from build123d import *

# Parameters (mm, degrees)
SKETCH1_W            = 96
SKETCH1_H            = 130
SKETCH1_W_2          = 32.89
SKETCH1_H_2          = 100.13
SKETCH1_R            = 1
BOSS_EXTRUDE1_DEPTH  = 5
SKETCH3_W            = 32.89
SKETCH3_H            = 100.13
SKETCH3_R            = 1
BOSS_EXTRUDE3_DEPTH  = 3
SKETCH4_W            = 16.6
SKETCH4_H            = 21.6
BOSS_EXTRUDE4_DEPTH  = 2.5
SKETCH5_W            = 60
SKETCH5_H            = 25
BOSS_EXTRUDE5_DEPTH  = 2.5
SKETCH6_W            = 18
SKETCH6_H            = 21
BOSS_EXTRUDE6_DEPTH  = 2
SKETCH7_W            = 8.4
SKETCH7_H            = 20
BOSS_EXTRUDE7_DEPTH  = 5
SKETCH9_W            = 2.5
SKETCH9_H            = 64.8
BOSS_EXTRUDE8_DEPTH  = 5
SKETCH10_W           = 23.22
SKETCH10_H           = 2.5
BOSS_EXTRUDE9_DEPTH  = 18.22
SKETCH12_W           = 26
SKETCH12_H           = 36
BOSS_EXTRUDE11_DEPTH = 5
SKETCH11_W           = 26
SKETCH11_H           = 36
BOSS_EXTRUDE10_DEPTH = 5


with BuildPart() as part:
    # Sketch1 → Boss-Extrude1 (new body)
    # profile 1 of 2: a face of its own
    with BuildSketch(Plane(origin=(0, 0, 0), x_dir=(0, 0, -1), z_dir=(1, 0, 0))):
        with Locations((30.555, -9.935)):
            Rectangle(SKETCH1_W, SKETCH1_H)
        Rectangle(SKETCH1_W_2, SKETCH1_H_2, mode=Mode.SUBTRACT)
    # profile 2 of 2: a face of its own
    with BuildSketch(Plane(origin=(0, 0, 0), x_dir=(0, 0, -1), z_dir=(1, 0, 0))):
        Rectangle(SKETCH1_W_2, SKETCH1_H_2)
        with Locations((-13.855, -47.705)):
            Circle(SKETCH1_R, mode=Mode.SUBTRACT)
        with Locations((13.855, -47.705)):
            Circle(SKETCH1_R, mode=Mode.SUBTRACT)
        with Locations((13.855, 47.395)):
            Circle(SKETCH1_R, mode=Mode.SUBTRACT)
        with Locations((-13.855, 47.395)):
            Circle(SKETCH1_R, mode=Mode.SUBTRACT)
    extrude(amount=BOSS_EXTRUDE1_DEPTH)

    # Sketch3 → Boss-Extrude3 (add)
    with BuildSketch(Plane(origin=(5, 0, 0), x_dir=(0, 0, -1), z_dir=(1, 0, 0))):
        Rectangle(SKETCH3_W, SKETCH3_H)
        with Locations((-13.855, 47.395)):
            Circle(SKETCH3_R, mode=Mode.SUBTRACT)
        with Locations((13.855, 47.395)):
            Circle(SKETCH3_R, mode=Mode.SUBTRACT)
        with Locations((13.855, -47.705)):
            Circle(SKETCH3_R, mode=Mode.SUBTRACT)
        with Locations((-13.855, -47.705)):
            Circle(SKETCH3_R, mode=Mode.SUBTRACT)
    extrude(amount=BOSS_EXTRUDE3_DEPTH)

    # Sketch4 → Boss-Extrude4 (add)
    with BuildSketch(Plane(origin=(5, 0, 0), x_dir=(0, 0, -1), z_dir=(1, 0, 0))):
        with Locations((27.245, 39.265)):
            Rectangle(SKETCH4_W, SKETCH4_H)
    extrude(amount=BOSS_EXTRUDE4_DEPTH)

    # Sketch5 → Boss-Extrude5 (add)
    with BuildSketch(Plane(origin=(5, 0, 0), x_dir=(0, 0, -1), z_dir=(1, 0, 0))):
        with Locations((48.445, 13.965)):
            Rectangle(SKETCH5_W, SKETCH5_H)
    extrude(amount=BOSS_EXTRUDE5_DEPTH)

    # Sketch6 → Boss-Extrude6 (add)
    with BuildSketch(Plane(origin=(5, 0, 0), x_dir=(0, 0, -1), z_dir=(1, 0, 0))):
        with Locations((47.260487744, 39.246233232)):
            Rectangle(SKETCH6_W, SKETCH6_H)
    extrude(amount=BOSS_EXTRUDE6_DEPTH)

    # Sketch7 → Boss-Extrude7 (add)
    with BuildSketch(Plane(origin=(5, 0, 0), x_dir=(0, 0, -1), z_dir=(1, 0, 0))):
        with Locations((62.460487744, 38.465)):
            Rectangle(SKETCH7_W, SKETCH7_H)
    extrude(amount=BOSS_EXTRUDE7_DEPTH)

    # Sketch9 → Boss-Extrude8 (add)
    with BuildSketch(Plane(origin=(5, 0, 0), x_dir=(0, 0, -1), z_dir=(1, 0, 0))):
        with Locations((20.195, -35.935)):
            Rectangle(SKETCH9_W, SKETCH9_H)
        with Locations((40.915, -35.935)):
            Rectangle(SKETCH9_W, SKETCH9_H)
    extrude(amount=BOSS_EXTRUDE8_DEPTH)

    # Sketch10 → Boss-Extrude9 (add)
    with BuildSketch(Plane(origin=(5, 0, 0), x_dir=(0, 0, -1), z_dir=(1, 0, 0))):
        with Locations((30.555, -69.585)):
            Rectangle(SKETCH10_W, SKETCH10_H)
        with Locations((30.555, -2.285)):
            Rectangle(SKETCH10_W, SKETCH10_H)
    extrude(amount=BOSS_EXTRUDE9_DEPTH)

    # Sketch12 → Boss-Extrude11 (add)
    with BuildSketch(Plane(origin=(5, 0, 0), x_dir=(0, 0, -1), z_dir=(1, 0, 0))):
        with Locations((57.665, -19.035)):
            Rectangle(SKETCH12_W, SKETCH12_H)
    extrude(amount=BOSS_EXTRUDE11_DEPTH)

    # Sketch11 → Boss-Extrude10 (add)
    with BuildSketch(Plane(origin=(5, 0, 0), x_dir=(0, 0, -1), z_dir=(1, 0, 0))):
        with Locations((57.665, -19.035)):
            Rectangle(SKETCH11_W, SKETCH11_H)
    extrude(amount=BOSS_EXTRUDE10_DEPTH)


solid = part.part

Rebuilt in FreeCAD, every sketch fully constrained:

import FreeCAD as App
import Part
import Sketcher

doc = App.newDocument("Part")
body = doc.addObject("PartDesign::Body", "Body")

# Sketch on YZ plane
sketch1 = doc.addObject("Sketcher::SketchObject", "Sketch")
body.addObject(sketch1)
sketch1.AttachmentSupport = (doc.YZ_Plane, [""])
sketch1.MapMode = "FlatFace"
sketch1.addGeometry(Part.LineSegment(App.Vector(55.1, 17.4, 0), App.Vector(-74.9, 17.4, 0)), False)
sketch1.addGeometry(Part.LineSegment(App.Vector(-74.9, 17.4, 0), App.Vector(-74.9, -78.6, 0)), False)
sketch1.addGeometry(Part.LineSegment(App.Vector(-74.9, -78.6, 0), App.Vector(55.1, -78.6, 0)), False)
sketch1.addGeometry(Part.LineSegment(App.Vector(55.1, -78.6, 0), App.Vector(55.1, 17.4, 0)), False)
sketch1.addGeometry(Part.Circle(App.Vector(-47.7, 13.9, 0), App.Vector(0, 0, 1), 1), False)
sketch1.addGeometry(Part.Circle(App.Vector(47.4, -13.9, 0), App.Vector(0, 0, 1), 1), False)
sketch1.addGeometry(Part.Circle(App.Vector(-47.7, -13.9, 0), App.Vector(0, 0, 1), 1), False)
sketch1.addGeometry(Part.Circle(App.Vector(47.4, 13.9, 0), App.Vector(0, 0, 1), 1), False)
sketch1.addConstraint(Sketcher.Constraint("Coincident", 0, 2, 1, 1))
sketch1.addConstraint(Sketcher.Constraint("Coincident", 1, 2, 2, 1))
sketch1.addConstraint(Sketcher.Constraint("Coincident", 2, 2, 3, 1))
sketch1.addConstraint(Sketcher.Constraint("Coincident", 3, 2, 0, 1))
sketch1.addConstraint(Sketcher.Constraint("Horizontal", 0))
sketch1.addConstraint(Sketcher.Constraint("Vertical", 1))
sketch1.addConstraint(Sketcher.Constraint("Horizontal", 2))
sketch1.addConstraint(Sketcher.Constraint("Vertical", 3))
sketch1.addConstraint(Sketcher.Constraint("Equal", 4, 5))
sketch1.addConstraint(Sketcher.Constraint("Equal", 5, 6))
sketch1.addConstraint(Sketcher.Constraint("Equal", 6, 7))
sketch1.addConstraint(Sketcher.Constraint("Symmetric", 4, 3, 6, 3, -1))
sketch1.addConstraint(Sketcher.Constraint("Symmetric", 5, 3, 7, 3, -1))
sketch1.addConstraint(Sketcher.Constraint("Horizontal", 5, 3, 6, 3))
sketch1.addConstraint(Sketcher.Constraint("Diameter", 4, 2.0))
sketch1.addConstraint(Sketcher.Constraint("DistanceX", 0, 2, 0, 1, 130.0))
sketch1.addConstraint(Sketcher.Constraint("DistanceY", 1, 2, 1, 1, 96.0))
sketch1.addConstraint(Sketcher.Constraint("DistanceX", 4, 3, 5, 3, 95.1))
sketch1.addConstraint(Sketcher.Constraint("DistanceY", 6, 3, 0, 2, 31.3))
sketch1.addConstraint(Sketcher.Constraint("DistanceY", 5, 3, 4, 3, 27.71))
sketch1.addConstraint(Sketcher.Constraint("DistanceX", 0, 2, 4, 3, 27.23))
sketch1.addConstraint(Sketcher.Constraint("DistanceX", 4, 3, -1, 1, 47.705))
pad1 = doc.addObject("PartDesign::Pad", "Pad")
body.addObject(pad1)
pad1.Profile = sketch1
pad1.Length = 5

# Sketch on YZ plane
sketch2 = doc.addObject("Sketcher::SketchObject", "Sketch001")
body.addObject(sketch2)
sketch2.AttachmentSupport = (doc.YZ_Plane, [""])
sketch2.MapMode = "FlatFace"
sketch2.AttachmentOffset = App.Placement(App.Vector(0, 0, 5), App.Rotation())
sketch2.addGeometry(Part.LineSegment(App.Vector(50.1, 16.4, 0), App.Vector(-50.1, 16.4, 0)), False)
sketch2.addGeometry(Part.LineSegment(App.Vector(-50.1, 16.4, 0), App.Vector(-50.1, -16.4, 0)), False)
sketch2.addGeometry(Part.LineSegment(App.Vector(-50.1, -16.4, 0), App.Vector(50.1, -16.4, 0)), False)
sketch2.addGeometry(Part.LineSegment(App.Vector(50.1, -16.4, 0), App.Vector(50.1, 16.4, 0)), False)
sketch2.addGeometry(Part.Circle(App.Vector(-47.7, 13.9, 0), App.Vector(0, 0, 1), 1), False)
sketch2.addGeometry(Part.Circle(App.Vector(-47.7, -13.9, 0), App.Vector(0, 0, 1), 1), False)
sketch2.addGeometry(Part.Circle(App.Vector(47.4, 13.9, 0), App.Vector(0, 0, 1), 1), False)
sketch2.addGeometry(Part.Circle(App.Vector(47.4, -13.9, 0), App.Vector(0, 0, 1), 1), False)
sketch2.addConstraint(Sketcher.Constraint("Coincident", 0, 2, 1, 1))
sketch2.addConstraint(Sketcher.Constraint("Coincident", 1, 2, 2, 1))
sketch2.addConstraint(Sketcher.Constraint("Coincident", 2, 2, 3, 1))
sketch2.addConstraint(Sketcher.Constraint("Coincident", 3, 2, 0, 1))
sketch2.addConstraint(Sketcher.Constraint("Horizontal", 0))
sketch2.addConstraint(Sketcher.Constraint("Vertical", 1))
sketch2.addConstraint(Sketcher.Constraint("Horizontal", 2))
sketch2.addConstraint(Sketcher.Constraint("Vertical", 3))
sketch2.addConstraint(Sketcher.Constraint("Equal", 4, 5))
sketch2.addConstraint(Sketcher.Constraint("Equal", 5, 6))
sketch2.addConstraint(Sketcher.Constraint("Equal", 6, 7))
sketch2.addConstraint(Sketcher.Constraint("Symmetric", 0, 2, 2, 2, -1, 1))
sketch2.addConstraint(Sketcher.Constraint("Symmetric", 4, 3, 5, 3, -1))
sketch2.addConstraint(Sketcher.Constraint("Symmetric", 6, 3, 7, 3, -1))
sketch2.addConstraint(Sketcher.Constraint("Horizontal", 4, 3, 6, 3))
sketch2.addConstraint(Sketcher.Constraint("Diameter", 4, 2.0))
sketch2.addConstraint(Sketcher.Constraint("DistanceX", 0, 2, 0, 1, 100.13))
sketch2.addConstraint(Sketcher.Constraint("DistanceY", 1, 2, 1, 1, 32.89))
sketch2.addConstraint(Sketcher.Constraint("DistanceX", 4, 3, 6, 3, 95.1))
sketch2.addConstraint(Sketcher.Constraint("DistanceY", 5, 3, 0, 2, 30.3))
sketch2.addConstraint(Sketcher.Constraint("DistanceX", 0, 2, 4, 3, 2.36))
pad2 = doc.addObject("PartDesign::Pad", "Pad001")
body.addObject(pad2)
pad2.Profile = sketch2
pad2.Length = 3

# Sketch on YZ plane
sketch3 = doc.addObject("Sketcher::SketchObject", "Sketch002")
body.addObject(sketch3)
sketch3.AttachmentSupport = (doc.YZ_Plane, [""])
sketch3.MapMode = "FlatFace"
sketch3.AttachmentOffset = App.Placement(App.Vector(0, 0, 5), App.Rotation())
sketch3.addGeometry(Part.LineSegment(App.Vector(50, -19, 0), App.Vector(28, -19, 0)), False)
sketch3.addGeometry(Part.LineSegment(App.Vector(28, -19, 0), App.Vector(28, -36, 0)), False)
sketch3.addGeometry(Part.LineSegment(App.Vector(28, -36, 0), App.Vector(50, -36, 0)), False)
sketch3.addGeometry(Part.LineSegment(App.Vector(50, -36, 0), App.Vector(50, -19, 0)), False)
sketch3.addConstraint(Sketcher.Constraint("Coincident", 0, 2, 1, 1))
sketch3.addConstraint(Sketcher.Constraint("Coincident", 1, 2, 2, 1))
sketch3.addConstraint(Sketcher.Constraint("Coincident", 2, 2, 3, 1))
sketch3.addConstraint(Sketcher.Constraint("Coincident", 3, 2, 0, 1))
sketch3.addConstraint(Sketcher.Constraint("Horizontal", 0))
sketch3.addConstraint(Sketcher.Constraint("Vertical", 1))
sketch3.addConstraint(Sketcher.Constraint("Horizontal", 2))
sketch3.addConstraint(Sketcher.Constraint("Vertical", 3))
sketch3.addConstraint(Sketcher.Constraint("DistanceX", 0, 2, 0, 1, 21.6))
sketch3.addConstraint(Sketcher.Constraint("DistanceY", 1, 2, 1, 1, 16.6))
sketch3.addConstraint(Sketcher.Constraint("DistanceX", -1, 1, 0, 2, 28.465))
sketch3.addConstraint(Sketcher.Constraint("DistanceY", 0, 2, -1, 1, 18.945))
pad3 = doc.addObject("PartDesign::Pad", "Pad002")
body.addObject(pad3)
pad3.Profile = sketch3
pad3.Length = 2.5

# Sketch on YZ plane
sketch4 = doc.addObject("Sketcher::SketchObject", "Sketch003")
body.addObject(sketch4)
sketch4.AttachmentSupport = (doc.YZ_Plane, [""])
sketch4.MapMode = "FlatFace"
sketch4.AttachmentOffset = App.Placement(App.Vector(0, 0, 5), App.Rotation())
sketch4.addGeometry(Part.LineSegment(App.Vector(26, -18, 0), App.Vector(1, -18, 0)), False)
sketch4.addGeometry(Part.LineSegment(App.Vector(1, -18, 0), App.Vector(1, -78, 0)), False)
sketch4.addGeometry(Part.LineSegment(App.Vector(1, -78, 0), App.Vector(26, -78, 0)), False)
sketch4.addGeometry(Part.LineSegment(App.Vector(26, -78, 0), App.Vector(26, -18, 0)), False)
sketch4.addConstraint(Sketcher.Constraint("Coincident", 0, 2, 1, 1))
sketch4.addConstraint(Sketcher.Constraint("Coincident", 1, 2, 2, 1))
sketch4.addConstraint(Sketcher.Constraint("Coincident", 2, 2, 3, 1))
sketch4.addConstraint(Sketcher.Constraint("Coincident", 3, 2, 0, 1))
sketch4.addConstraint(Sketcher.Constraint("Horizontal", 0))
sketch4.addConstraint(Sketcher.Constraint("Vertical", 1))
sketch4.addConstraint(Sketcher.Constraint("Horizontal", 2))
sketch4.addConstraint(Sketcher.Constraint("Vertical", 3))
sketch4.addConstraint(Sketcher.Constraint("DistanceX", 0, 2, 0, 1, 25.0))
sketch4.addConstraint(Sketcher.Constraint("DistanceY", 1, 2, 1, 1, 60.0))
sketch4.addConstraint(Sketcher.Constraint("DistanceX", -1, 1, 0, 2, 1.465))
sketch4.addConstraint(Sketcher.Constraint("DistanceY", 0, 2, -1, 1, 18.445))
pad4 = doc.addObject("PartDesign::Pad", "Pad003")
body.addObject(pad4)
pad4.Profile = sketch4
pad4.Length = 2.5

# Sketch on YZ plane
sketch5 = doc.addObject("Sketcher::SketchObject", "Sketch004")
body.addObject(sketch5)
sketch5.AttachmentSupport = (doc.YZ_Plane, [""])
sketch5.MapMode = "FlatFace"
sketch5.AttachmentOffset = App.Placement(App.Vector(0, 0, 5), App.Rotation())
sketch5.addGeometry(Part.LineSegment(App.Vector(50, -38, 0), App.Vector(29, -38, 0)), False)
sketch5.addGeometry(Part.LineSegment(App.Vector(29, -38, 0), App.Vector(29, -56, 0)), False)
sketch5.addGeometry(Part.LineSegment(App.Vector(29, -56, 0), App.Vector(50, -56, 0)), False)
sketch5.addGeometry(Part.LineSegment(App.Vector(50, -56, 0), App.Vector(50, -38, 0)), False)
sketch5.addConstraint(Sketcher.Constraint("Coincident", 0, 2, 1, 1))
sketch5.addConstraint(Sketcher.Constraint("Coincident", 1, 2, 2, 1))
sketch5.addConstraint(Sketcher.Constraint("Coincident", 2, 2, 3, 1))
sketch5.addConstraint(Sketcher.Constraint("Coincident", 3, 2, 0, 1))
sketch5.addConstraint(Sketcher.Constraint("Horizontal", 0))
sketch5.addConstraint(Sketcher.Constraint("Vertical", 1))
sketch5.addConstraint(Sketcher.Constraint("Horizontal", 2))
sketch5.addConstraint(Sketcher.Constraint("Vertical", 3))
sketch5.addConstraint(Sketcher.Constraint("DistanceX", 0, 2, 0, 1, 21.0))
sketch5.addConstraint(Sketcher.Constraint("DistanceY", 1, 2, 1, 1, 18.0))
sketch5.addConstraint(Sketcher.Constraint("DistanceX", -1, 1, 0, 2, 28.746233))
sketch5.addConstraint(Sketcher.Constraint("DistanceY", 0, 2, -1, 1, 38.260488))
pad5 = doc.addObject("PartDesign::Pad", "Pad004")
body.addObject(pad5)
pad5.Profile = sketch5
pad5.Length = 2

# Sketch on YZ plane
sketch6 = doc.addObject("Sketcher::SketchObject", "Sketch005")
body.addObject(sketch6)
sketch6.AttachmentSupport = (doc.YZ_Plane, [""])
sketch6.MapMode = "FlatFace"
sketch6.AttachmentOffset = App.Placement(App.Vector(0, 0, 5), App.Rotation())
sketch6.addGeometry(Part.LineSegment(App.Vector(48, -58, 0), App.Vector(28, -58, 0)), False)
sketch6.addGeometry(Part.LineSegment(App.Vector(28, -58, 0), App.Vector(28, -67, 0)), False)
sketch6.addGeometry(Part.LineSegment(App.Vector(28, -67, 0), App.Vector(48, -67, 0)), False)
sketch6.addGeometry(Part.LineSegment(App.Vector(48, -67, 0), App.Vector(48, -58, 0)), False)
sketch6.addConstraint(Sketcher.Constraint("Coincident", 0, 2, 1, 1))
sketch6.addConstraint(Sketcher.Constraint("Coincident", 1, 2, 2, 1))
sketch6.addConstraint(Sketcher.Constraint("Coincident", 2, 2, 3, 1))
sketch6.addConstraint(Sketcher.Constraint("Coincident", 3, 2, 0, 1))
sketch6.addConstraint(Sketcher.Constraint("Horizontal", 0))
sketch6.addConstraint(Sketcher.Constraint("Vertical", 1))
sketch6.addConstraint(Sketcher.Constraint("Horizontal", 2))
sketch6.addConstraint(Sketcher.Constraint("Vertical", 3))
sketch6.addConstraint(Sketcher.Constraint("DistanceX", 0, 2, 0, 1, 20.0))
sketch6.addConstraint(Sketcher.Constraint("DistanceY", 1, 2, 1, 1, 8.4))
sketch6.addConstraint(Sketcher.Constraint("DistanceX", -1, 1, 0, 2, 28.465))
sketch6.addConstraint(Sketcher.Constraint("DistanceY", 0, 2, -1, 1, 58.260488))
pad6 = doc.addObject("PartDesign::Pad", "Pad005")
body.addObject(pad6)
pad6.Profile = sketch6
pad6.Length = 5

# Sketch on YZ plane
sketch7 = doc.addObject("Sketcher::SketchObject", "Sketch006")
body.addObject(sketch7)
sketch7.AttachmentSupport = (doc.YZ_Plane, [""])
sketch7.MapMode = "FlatFace"
sketch7.AttachmentOffset = App.Placement(App.Vector(0, 0, 5), App.Rotation())
sketch7.addGeometry(Part.LineSegment(App.Vector(-3.5, -18.9, 0), App.Vector(-68.3, -18.9, 0)), False)
sketch7.addGeometry(Part.LineSegment(App.Vector(-68.3, -18.9, 0), App.Vector(-68.3, -21.4, 0)), False)
sketch7.addGeometry(Part.LineSegment(App.Vector(-68.3, -21.4, 0), App.Vector(-3.5, -21.4, 0)), False)
sketch7.addGeometry(Part.LineSegment(App.Vector(-3.5, -21.4, 0), App.Vector(-3.5, -18.9, 0)), False)
sketch7.addGeometry(Part.LineSegment(App.Vector(-3.5, -39.7, 0), App.Vector(-68.3, -39.7, 0)), False)
sketch7.addGeometry(Part.LineSegment(App.Vector(-68.3, -39.7, 0), App.Vector(-68.3, -42.2, 0)), False)
sketch7.addGeometry(Part.LineSegment(App.Vector(-68.3, -42.2, 0), App.Vector(-3.5, -42.2, 0)), False)
sketch7.addGeometry(Part.LineSegment(App.Vector(-3.5, -42.2, 0), App.Vector(-3.5, -39.7, 0)), False)
sketch7.addConstraint(Sketcher.Constraint("Coincident", 0, 2, 1, 1))
sketch7.addConstraint(Sketcher.Constraint("Coincident", 1, 2, 2, 1))
sketch7.addConstraint(Sketcher.Constraint("Coincident", 2, 2, 3, 1))
sketch7.addConstraint(Sketcher.Constraint("Coincident", 3, 2, 0, 1))
sketch7.addConstraint(Sketcher.Constraint("Coincident", 4, 2, 5, 1))
sketch7.addConstraint(Sketcher.Constraint("Coincident", 5, 2, 6, 1))
sketch7.addConstraint(Sketcher.Constraint("Coincident", 6, 2, 7, 1))
sketch7.addConstraint(Sketcher.Constraint("Coincident", 7, 2, 4, 1))
sketch7.addConstraint(Sketcher.Constraint("Horizontal", 0))
sketch7.addConstraint(Sketcher.Constraint("Vertical", 1))
sketch7.addConstraint(Sketcher.Constraint("Horizontal", 2))
sketch7.addConstraint(Sketcher.Constraint("Vertical", 3))
sketch7.addConstraint(Sketcher.Constraint("Horizontal", 4))
sketch7.addConstraint(Sketcher.Constraint("Vertical", 5))
sketch7.addConstraint(Sketcher.Constraint("Horizontal", 6))
sketch7.addConstraint(Sketcher.Constraint("Vertical", 7))
sketch7.addConstraint(Sketcher.Constraint("Vertical", 1, 2, 4, 2))
sketch7.addConstraint(Sketcher.Constraint("Vertical", 3, 2, 6, 2))
sketch7.addConstraint(Sketcher.Constraint("Equal", 3, 5))
sketch7.addConstraint(Sketcher.Constraint("DistanceX", 0, 2, 0, 1, 64.8))
sketch7.addConstraint(Sketcher.Constraint("DistanceY", 1, 2, 1, 1, 2.5))
sketch7.addConstraint(Sketcher.Constraint("DistanceY", 4, 2, 1, 2, 18.22))
sketch7.addConstraint(Sketcher.Constraint("DistanceX", 0, 2, -1, 1, 68.335))
sketch7.addConstraint(Sketcher.Constraint("DistanceY", 0, 2, -1, 1, 18.945))
pad7 = doc.addObject("PartDesign::Pad", "Pad006")
body.addObject(pad7)
pad7.Profile = sketch7
pad7.Length = 5

# Sketch on YZ plane
sketch8 = doc.addObject("Sketcher::SketchObject", "Sketch007")
body.addObject(sketch8)
sketch8.AttachmentSupport = (doc.YZ_Plane, [""])
sketch8.MapMode = "FlatFace"
sketch8.AttachmentOffset = App.Placement(App.Vector(0, 0, 5), App.Rotation())
sketch8.addGeometry(Part.LineSegment(App.Vector(-68.3, -18.9, 0), App.Vector(-70.8, -18.9, 0)), False)
sketch8.addGeometry(Part.LineSegment(App.Vector(-70.8, -18.9, 0), App.Vector(-70.8, -42.2, 0)), False)
sketch8.addGeometry(Part.LineSegment(App.Vector(-70.8, -42.2, 0), App.Vector(-68.3, -42.2, 0)), False)
sketch8.addGeometry(Part.LineSegment(App.Vector(-68.3, -42.2, 0), App.Vector(-68.3, -18.9, 0)), False)
sketch8.addGeometry(Part.LineSegment(App.Vector(-1, -18.9, 0), App.Vector(-3.5, -18.9, 0)), False)
sketch8.addGeometry(Part.LineSegment(App.Vector(-3.5, -18.9, 0), App.Vector(-3.5, -42.2, 0)), False)
sketch8.addGeometry(Part.LineSegment(App.Vector(-3.5, -42.2, 0), App.Vector(-1, -42.2, 0)), False)
sketch8.addGeometry(Part.LineSegment(App.Vector(-1, -42.2, 0), App.Vector(-1, -18.9, 0)), False)
sketch8.addConstraint(Sketcher.Constraint("Coincident", 0, 2, 1, 1))
sketch8.addConstraint(Sketcher.Constraint("Coincident", 1, 2, 2, 1))
sketch8.addConstraint(Sketcher.Constraint("Coincident", 2, 2, 3, 1))
sketch8.addConstraint(Sketcher.Constraint("Coincident", 3, 2, 0, 1))
sketch8.addConstraint(Sketcher.Constraint("Coincident", 4, 2, 5, 1))
sketch8.addConstraint(Sketcher.Constraint("Coincident", 5, 2, 6, 1))
sketch8.addConstraint(Sketcher.Constraint("Coincident", 6, 2, 7, 1))
sketch8.addConstraint(Sketcher.Constraint("Coincident", 7, 2, 4, 1))
sketch8.addConstraint(Sketcher.Constraint("Horizontal", 0))
sketch8.addConstraint(Sketcher.Constraint("Vertical", 1))
sketch8.addConstraint(Sketcher.Constraint("Horizontal", 2))
sketch8.addConstraint(Sketcher.Constraint("Vertical", 3))
sketch8.addConstraint(Sketcher.Constraint("Horizontal", 4))
sketch8.addConstraint(Sketcher.Constraint("Vertical", 5))
sketch8.addConstraint(Sketcher.Constraint("Horizontal", 6))
sketch8.addConstraint(Sketcher.Constraint("Vertical", 7))
sketch8.addConstraint(Sketcher.Constraint("Horizontal", 3, 2, 4, 2))
sketch8.addConstraint(Sketcher.Constraint("Horizontal", 2, 2, 5, 2))
sketch8.addConstraint(Sketcher.Constraint("Equal", 2, 4))
sketch8.addConstraint(Sketcher.Constraint("DistanceX", 0, 2, 0, 1, 2.5))
sketch8.addConstraint(Sketcher.Constraint("DistanceY", 1, 2, 1, 1, 23.22))
sketch8.addConstraint(Sketcher.Constraint("DistanceX", 3, 2, 4, 2, 64.8))
sketch8.addConstraint(Sketcher.Constraint("DistanceX", 0, 2, -1, 1, 70.835))
sketch8.addConstraint(Sketcher.Constraint("DistanceY", 0, 2, -1, 1, 18.945))
pad8 = doc.addObject("PartDesign::Pad", "Pad007")
body.addObject(pad8)
pad8.Profile = sketch8
pad8.Length = 18.22

# Sketch on YZ plane
sketch9 = doc.addObject("Sketcher::SketchObject", "Sketch008")
body.addObject(sketch9)
sketch9.AttachmentSupport = (doc.YZ_Plane, [""])
sketch9.MapMode = "FlatFace"
sketch9.AttachmentOffset = App.Placement(App.Vector(0, 0, 5), App.Rotation())
sketch9.addGeometry(Part.LineSegment(App.Vector(-1, -45, 0), App.Vector(-37, -45, 0)), False)
sketch9.addGeometry(Part.LineSegment(App.Vector(-37, -45, 0), App.Vector(-37, -71, 0)), False)
sketch9.addGeometry(Part.LineSegment(App.Vector(-37, -71, 0), App.Vector(-1, -71, 0)), False)
sketch9.addGeometry(Part.LineSegment(App.Vector(-1, -71, 0), App.Vector(-1, -45, 0)), False)
sketch9.addConstraint(Sketcher.Constraint("Coincident", 0, 2, 1, 1))
sketch9.addConstraint(Sketcher.Constraint("Coincident", 1, 2, 2, 1))
sketch9.addConstraint(Sketcher.Constraint("Coincident", 2, 2, 3, 1))
sketch9.addConstraint(Sketcher.Constraint("Coincident", 3, 2, 0, 1))
sketch9.addConstraint(Sketcher.Constraint("Horizontal", 0))
sketch9.addConstraint(Sketcher.Constraint("Vertical", 1))
sketch9.addConstraint(Sketcher.Constraint("Horizontal", 2))
sketch9.addConstraint(Sketcher.Constraint("Vertical", 3))
sketch9.addConstraint(Sketcher.Constraint("DistanceX", 0, 2, 0, 1, 36.0))
sketch9.addConstraint(Sketcher.Constraint("DistanceY", 1, 2, 1, 1, 26.0))
sketch9.addConstraint(Sketcher.Constraint("DistanceX", 0, 2, -1, 1, 37.035))
sketch9.addConstraint(Sketcher.Constraint("DistanceY", 0, 2, -1, 1, 44.665))
pad9 = doc.addObject("PartDesign::Pad", "Pad008")
body.addObject(pad9)
pad9.Profile = sketch9
pad9.Length = 5

# Sketch on YZ plane
sketch10 = doc.addObject("Sketcher::SketchObject", "Sketch009")
body.addObject(sketch10)
sketch10.AttachmentSupport = (doc.YZ_Plane, [""])
sketch10.MapMode = "FlatFace"
sketch10.AttachmentOffset = App.Placement(App.Vector(0, 0, 5), App.Rotation())
sketch10.addGeometry(Part.LineSegment(App.Vector(-1, -45, 0), App.Vector(-37, -45, 0)), False)
sketch10.addGeometry(Part.LineSegment(App.Vector(-37, -45, 0), App.Vector(-37, -71, 0)), False)
sketch10.addGeometry(Part.LineSegment(App.Vector(-37, -71, 0), App.Vector(-1, -71, 0)), False)
sketch10.addGeometry(Part.LineSegment(App.Vector(-1, -71, 0), App.Vector(-1, -45, 0)), False)
sketch10.addConstraint(Sketcher.Constraint("Coincident", 0, 2, 1, 1))
sketch10.addConstraint(Sketcher.Constraint("Coincident", 1, 2, 2, 1))
sketch10.addConstraint(Sketcher.Constraint("Coincident", 2, 2, 3, 1))
sketch10.addConstraint(Sketcher.Constraint("Coincident", 3, 2, 0, 1))
sketch10.addConstraint(Sketcher.Constraint("Horizontal", 0))
sketch10.addConstraint(Sketcher.Constraint("Vertical", 1))
sketch10.addConstraint(Sketcher.Constraint("Horizontal", 2))
sketch10.addConstraint(Sketcher.Constraint("Vertical", 3))
sketch10.addConstraint(Sketcher.Constraint("DistanceX", 0, 2, 0, 1, 36.0))
sketch10.addConstraint(Sketcher.Constraint("DistanceY", 1, 2, 1, 1, 26.0))
sketch10.addConstraint(Sketcher.Constraint("DistanceX", 0, 2, -1, 1, 37.035))
sketch10.addConstraint(Sketcher.Constraint("DistanceY", 0, 2, -1, 1, 44.665))
pad10 = doc.addObject("PartDesign::Pad", "Pad009")
body.addObject(pad10)
pad10.Profile = sketch10
pad10.Length = 5

doc.recompute()
